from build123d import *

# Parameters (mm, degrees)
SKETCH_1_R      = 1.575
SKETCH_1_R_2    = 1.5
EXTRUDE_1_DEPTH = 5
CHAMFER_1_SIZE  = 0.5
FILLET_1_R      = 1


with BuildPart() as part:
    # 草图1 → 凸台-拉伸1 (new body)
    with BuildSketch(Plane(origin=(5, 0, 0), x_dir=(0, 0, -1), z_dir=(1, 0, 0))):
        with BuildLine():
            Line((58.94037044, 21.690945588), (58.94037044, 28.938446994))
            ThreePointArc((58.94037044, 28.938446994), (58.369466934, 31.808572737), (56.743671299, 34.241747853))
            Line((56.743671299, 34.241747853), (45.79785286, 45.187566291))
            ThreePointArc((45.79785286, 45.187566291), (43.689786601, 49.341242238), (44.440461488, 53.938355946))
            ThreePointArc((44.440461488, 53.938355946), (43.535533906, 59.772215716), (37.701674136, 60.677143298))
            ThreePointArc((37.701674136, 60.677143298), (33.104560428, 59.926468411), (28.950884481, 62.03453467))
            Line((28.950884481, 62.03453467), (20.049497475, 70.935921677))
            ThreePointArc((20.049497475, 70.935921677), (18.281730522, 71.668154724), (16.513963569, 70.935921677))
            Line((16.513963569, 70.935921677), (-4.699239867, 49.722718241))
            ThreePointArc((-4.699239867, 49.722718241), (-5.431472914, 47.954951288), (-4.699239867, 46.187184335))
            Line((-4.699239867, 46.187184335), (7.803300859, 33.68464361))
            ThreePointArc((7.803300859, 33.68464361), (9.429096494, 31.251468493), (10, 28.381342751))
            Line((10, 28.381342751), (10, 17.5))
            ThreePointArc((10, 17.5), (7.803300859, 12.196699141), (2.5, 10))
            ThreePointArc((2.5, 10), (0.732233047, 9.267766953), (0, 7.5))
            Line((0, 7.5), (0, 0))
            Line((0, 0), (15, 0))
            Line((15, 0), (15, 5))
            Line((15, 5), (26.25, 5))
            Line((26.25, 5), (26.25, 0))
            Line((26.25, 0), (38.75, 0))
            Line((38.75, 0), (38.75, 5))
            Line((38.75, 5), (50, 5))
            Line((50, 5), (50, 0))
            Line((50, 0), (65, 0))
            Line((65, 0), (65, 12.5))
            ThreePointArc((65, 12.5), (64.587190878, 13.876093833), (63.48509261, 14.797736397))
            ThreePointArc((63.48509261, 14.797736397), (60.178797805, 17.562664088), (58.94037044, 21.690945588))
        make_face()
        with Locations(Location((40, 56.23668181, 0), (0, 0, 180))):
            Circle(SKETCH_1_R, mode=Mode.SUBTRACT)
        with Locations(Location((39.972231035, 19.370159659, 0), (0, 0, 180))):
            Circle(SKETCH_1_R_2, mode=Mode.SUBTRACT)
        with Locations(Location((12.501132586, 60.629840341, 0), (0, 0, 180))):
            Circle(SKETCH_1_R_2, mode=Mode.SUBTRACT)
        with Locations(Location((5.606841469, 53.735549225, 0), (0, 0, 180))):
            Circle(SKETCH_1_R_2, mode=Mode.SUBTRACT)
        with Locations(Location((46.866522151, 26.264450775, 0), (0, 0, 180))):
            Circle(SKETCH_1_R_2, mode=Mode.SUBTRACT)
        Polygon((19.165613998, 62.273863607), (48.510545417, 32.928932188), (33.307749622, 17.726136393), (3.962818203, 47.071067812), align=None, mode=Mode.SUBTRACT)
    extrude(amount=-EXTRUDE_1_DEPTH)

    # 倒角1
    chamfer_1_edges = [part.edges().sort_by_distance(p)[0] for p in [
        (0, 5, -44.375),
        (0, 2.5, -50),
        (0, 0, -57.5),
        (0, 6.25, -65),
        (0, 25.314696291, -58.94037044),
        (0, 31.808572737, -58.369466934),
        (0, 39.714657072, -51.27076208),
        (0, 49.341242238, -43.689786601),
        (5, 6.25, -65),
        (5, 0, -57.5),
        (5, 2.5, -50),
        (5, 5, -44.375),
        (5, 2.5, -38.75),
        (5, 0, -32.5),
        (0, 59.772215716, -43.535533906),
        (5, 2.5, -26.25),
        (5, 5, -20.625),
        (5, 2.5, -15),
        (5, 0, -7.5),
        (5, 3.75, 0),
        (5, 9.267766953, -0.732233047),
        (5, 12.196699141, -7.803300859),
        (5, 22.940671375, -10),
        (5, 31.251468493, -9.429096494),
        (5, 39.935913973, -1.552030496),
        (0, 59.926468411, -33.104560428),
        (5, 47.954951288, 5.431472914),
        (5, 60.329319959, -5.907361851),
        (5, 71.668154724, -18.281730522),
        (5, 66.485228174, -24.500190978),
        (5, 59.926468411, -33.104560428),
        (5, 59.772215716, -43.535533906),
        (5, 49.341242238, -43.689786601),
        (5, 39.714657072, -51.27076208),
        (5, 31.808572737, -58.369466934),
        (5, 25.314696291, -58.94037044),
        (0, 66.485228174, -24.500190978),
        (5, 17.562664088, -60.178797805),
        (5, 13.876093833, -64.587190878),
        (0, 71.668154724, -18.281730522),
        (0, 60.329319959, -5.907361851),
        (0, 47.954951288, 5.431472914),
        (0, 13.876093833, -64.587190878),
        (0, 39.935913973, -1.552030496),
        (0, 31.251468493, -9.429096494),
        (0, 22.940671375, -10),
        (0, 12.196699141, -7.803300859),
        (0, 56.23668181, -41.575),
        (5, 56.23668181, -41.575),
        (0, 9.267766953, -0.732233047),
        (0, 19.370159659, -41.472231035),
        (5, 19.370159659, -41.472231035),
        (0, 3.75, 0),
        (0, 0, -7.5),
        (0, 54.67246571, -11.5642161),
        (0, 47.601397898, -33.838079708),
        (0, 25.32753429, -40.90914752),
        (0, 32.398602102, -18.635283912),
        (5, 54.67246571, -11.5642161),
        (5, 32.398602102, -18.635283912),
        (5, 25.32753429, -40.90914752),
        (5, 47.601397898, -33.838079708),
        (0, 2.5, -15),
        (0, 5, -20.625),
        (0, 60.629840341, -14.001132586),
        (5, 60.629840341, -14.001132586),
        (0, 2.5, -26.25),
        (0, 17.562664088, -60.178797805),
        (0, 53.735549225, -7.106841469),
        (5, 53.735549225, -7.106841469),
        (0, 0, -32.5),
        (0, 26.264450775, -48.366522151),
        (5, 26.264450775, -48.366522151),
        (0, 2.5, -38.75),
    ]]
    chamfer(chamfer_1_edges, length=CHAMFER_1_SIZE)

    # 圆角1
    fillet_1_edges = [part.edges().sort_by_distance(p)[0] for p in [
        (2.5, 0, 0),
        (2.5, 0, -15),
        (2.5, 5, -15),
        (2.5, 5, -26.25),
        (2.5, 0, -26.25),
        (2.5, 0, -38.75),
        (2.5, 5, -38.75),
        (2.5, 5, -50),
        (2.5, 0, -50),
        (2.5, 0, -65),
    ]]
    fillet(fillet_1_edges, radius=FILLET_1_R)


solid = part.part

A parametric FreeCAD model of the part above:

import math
import FreeCAD as App
import Part
import Sketcher

V = App.Vector


def edges_at(feature, points):
    """Names of the edges that pass closest to the given points."""
    edges = feature.Shape.Edges
    near = lambda p: min(range(len(edges)), key=lambda i: edges[i].distToShape(Part.Vertex(*p))[0])
    return sorted({f"Edge{near(p) + 1}" for p in points})

doc = App.newDocument("Part")
body = doc.addObject("PartDesign::Body", "Body")

# Sketch on YZ plane
sketch1 = doc.addObject("Sketcher::SketchObject", "Sketch")
body.addObject(sketch1)
sketch1.AttachmentSupport = (doc.YZ_Plane, [""])
sketch1.MapMode = "FlatFace"
sketch1.AttachmentOffset = App.Placement(V(0, 0, 5), App.Rotation())
sketch1.addGeometry([
    Part.LineSegment(V(21.690946, -58.94037, 0), V(28.938447, -58.94037, 0)),  # 0
    Part.ArcOfCircle(Part.Circle(V(28.938447, -51.44037, 0), V(0, 0, 1), 7.5), math.radians(-90), math.radians(-45)),  # 1
    Part.LineSegment(V(34.241748, -56.743671, 0), V(45.187566, -45.797853, 0)),  # 2
    Part.ArcOfCircle(Part.Circle(V(50.490867, -51.101154, 0), V(0, 0, 1), 7.5), math.radians(62.634496), math.radians(135)),  # 3
    Part.ArcOfCircle(Part.Circle(V(56.236682, -40, 0), V(0, 0, 1), 5), math.radians(-117.365504), math.radians(27.365504)),  # 4
    Part.ArcOfCircle(Part.Circle(V(67.337836, -34.254185, 0), V(0, 0, 1), 7.5), math.radians(135), math.radians(207.365504)),  # 5
    Part.LineSegment(V(62.034535, -28.950884, 0), V(70.935922, -20.049497, 0)),  # 6
    Part.ArcOfCircle(Part.Circle(V(69.168155, -18.281731, 0), V(0, 0, 1), 2.5), math.radians(-45), math.radians(45)),  # 7
    Part.LineSegment(V(70.935922, -16.513964, 0), V(49.722718, 4.69924, 0)),  # 8
    Part.ArcOfCircle(Part.Circle(V(47.954951, 2.931473, 0), V(0, 0, 1), 2.5), math.radians(45), math.radians(135)),  # 9
    Part.LineSegment(V(46.187184, 4.69924, 0), V(33.684644, -7.803301, 0)),  # 10
    Part.ArcOfCircle(Part.Circle(V(28.381343, -2.5, 0), V(0, 0, 1), 7.5), math.radians(-90), math.radians(-45)),  # 11
    Part.LineSegment(V(28.381343, -10, 0), V(17.5, -10, 0)),  # 12
    Part.ArcOfCircle(Part.Circle(V(17.5, -2.5, 0), V(0, 0, 1), 7.5), math.radians(180), math.radians(270)),  # 13
    Part.ArcOfCircle(Part.Circle(V(7.5, -2.5, 0), V(0, 0, 1), 2.5), math.radians(0), math.radians(90)),  # 14
    Part.LineSegment(V(7.5, 0, 0), V(0, 0, 0)),  # 15
    Part.LineSegment(V(0, 0, 0), V(0, -15, 0)),  # 16
    Part.LineSegment(V(0, -15, 0), V(5, -15, 0)),  # 17
    Part.LineSegment(V(5, -15, 0), V(5, -26.25, 0)),  # 18
    Part.LineSegment(V(5, -26.25, 0), V(0, -26.25, 0)),  # 19
    Part.LineSegment(V(0, -26.25, 0), V(0, -38.75, 0)),  # 20
    Part.LineSegment(V(0, -38.75, 0), V(5, -38.75, 0)),  # 21
    Part.LineSegment(V(5, -38.75, 0), V(5, -50, 0)),  # 22
    Part.LineSegment(V(5, -50, 0), V(0, -50, 0)),  # 23
    Part.LineSegment(V(0, -50, 0), V(0, -65, 0)),  # 24
    Part.LineSegment(V(0, -65, 0), V(12.5, -65, 0)),  # 25
    Part.ArcOfCircle(Part.Circle(V(12.5, -62.5, 0), V(0, 0, 1), 2.5), math.radians(-90), math.radians(-23.205931)),  # 26
    Part.ArcOfCircle(Part.Circle(V(21.690946, -66.44037, 0), V(0, 0, 1), 7.5), math.radians(90), math.radians(156.79407)),  # 27
    Part.Circle(V(19.37016, -39.972231, 0), V(0, 0, 1), 1.5),  # 28
    Part.Circle(V(26.264451, -46.866522, 0), V(0, 0, 1), 1.5),  # 29
    Part.Circle(V(53.735549, -5.606841, 0), V(0, 0, 1), 1.5),  # 30
    Part.Circle(V(60.62984, -12.501133, 0), V(0, 0, 1), 1.5),  # 31
    Part.LineSegment(V(47.071068, -3.962818, 0), V(62.273864, -19.165614, 0)),  # 32
    Part.LineSegment(V(62.273864, -19.165614, 0), V(32.928932, -48.510545, 0)),  # 33
    Part.LineSegment(V(32.928932, -48.510545, 0), V(17.726136, -33.30775, 0)),  # 34
    Part.LineSegment(V(17.726136, -33.30775, 0), V(47.071068, -3.962818, 0)),  # 35
    Part.Circle(V(56.236682, -40, 0), V(0, 0, 1), 1.575),  # 36
], False)
sketch1.addConstraint([
    Sketcher.Constraint("Tangent", 0, 2, 1, 1),
    Sketcher.Constraint("Tangent", 1, 2, 2, 1),
    Sketcher.Constraint("Tangent", 2, 2, 3, 2),
    Sketcher.Constraint("Tangent", 3, 1, 4, 1),
    Sketcher.Constraint("Tangent", 4, 2, 5, 2),
    Sketcher.Constraint("Tangent", 5, 1, 6, 1),
    Sketcher.Constraint("Tangent", 6, 2, 7, 1),
    Sketcher.Constraint("Tangent", 7, 2, 8, 1),
    Sketcher.Constraint("Tangent", 8, 2, 9, 1),
    Sketcher.Constraint("Tangent", 9, 2, 10, 1),
    Sketcher.Constraint("Tangent", 10, 2, 11, 2),
    Sketcher.Constraint("Tangent", 11, 1, 12, 1),
    Sketcher.Constraint("Tangent", 12, 2, 13, 2),
    Sketcher.Constraint("Tangent", 13, 1, 14, 1),
    Sketcher.Constraint("Tangent", 14, 2, 15, 1),
    Sketcher.Constraint("Coincident", 15, 2, 16, 1),
    Sketcher.Constraint("Coincident", 16, 2, 17, 1),
    Sketcher.Constraint("Coincident", 17, 2, 18, 1),
    Sketcher.Constraint("Coincident", 18, 2, 19, 1),
    Sketcher.Constraint("Coincident", 19, 2, 20, 1),
    Sketcher.Constraint("Coincident", 20, 2, 21, 1),
    Sketcher.Constraint("Coincident", 21, 2, 22, 1),
    Sketcher.Constraint("Coincident", 22, 2, 23, 1),
    Sketcher.Constraint("Coincident", 23, 2, 24, 1),
    Sketcher.Constraint("Coincident", 24, 2, 25, 1),
    Sketcher.Constraint("Tangent", 25, 2, 26, 1),
    Sketcher.Constraint("Tangent", 26, 2, 27, 2),
    Sketcher.Constraint("Tangent", 27, 1, 0, 1),
    Sketcher.Constraint("Coincident", 32, 2, 33, 1),
    Sketcher.Constraint("Coincident", 33, 2, 34, 1),
    Sketcher.Constraint("Coincident", 34, 2, 35, 1),
    Sketcher.Constraint("Coincident", 35, 2, 32, 1),
    Sketcher.Constraint("Horizontal", 0),
    Sketcher.Constraint("Horizontal", 12),
    Sketcher.Constraint("Horizontal", 15),
    Sketcher.Constraint("Vertical", 16),
    Sketcher.Constraint("Horizontal", 17),
    Sketcher.Constraint("Vertical", 18),
    Sketcher.Constraint("Horizontal", 19),
    Sketcher.Constraint("Vertical", 20),
    Sketcher.Constraint("Horizontal", 21),
    Sketcher.Constraint("Vertical", 22),
    Sketcher.Constraint("Horizontal", 23),
    Sketcher.Constraint("Vertical", 24),
    Sketcher.Constraint("Horizontal", 25),
    Sketcher.Constraint("Coincident", 15, 2, -1, 1),
    Sketcher.Constraint("Coincident", 36, 3, 4, 3),
    Sketcher.Constraint("Equal", 1, 3),
    Sketcher.Constraint("Equal", 3, 5),
    Sketcher.Constraint("Equal", 7, 9),
    Sketcher.Constraint("Equal", 5, 11),
    Sketcher.Constraint("Equal", 11, 13),
    Sketcher.Constraint("Equal", 9, 14),
    Sketcher.Constraint("Equal", 14, 26),
    Sketcher.Constraint("Equal", 13, 27),
    Sketcher.Constraint("Equal", 28, 29),
    Sketcher.Constraint("Equal", 29, 30),
    Sketcher.Constraint("Equal", 30, 31),
    Sketcher.Constraint("PointOnObject", 19, 2, -2),
    Sketcher.Constraint("PointOnObject", 23, 2, -2),
    Sketcher.Constraint("Parallel", 2, 6),
    Sketcher.Constraint("Perpendicular", 6, 8),
    Sketcher.Constraint("Perpendicular", 8, 10),
    Sketcher.Constraint("Perpendicular", 10, 32),
    Sketcher.Constraint("Perpendicular", 32, 33),
    Sketcher.Constraint("Perpendicular", 33, 34),
    Sketcher.Constraint("Perpendicular", 34, 35),
    Sketcher.Constraint("Horizontal", 13, 3, 14, 3),
    Sketcher.Constraint("Horizontal", 8, 2, 9, 2),
    Sketcher.Constraint("Vertical", 18, 2, 21, 2),
    Sketcher.Constraint("Equal", 25, 20),
    Sketcher.Constraint("Equal", 18, 22),
    Sketcher.Constraint("Equal", 16, 24),
    Sketcher.Constraint("Diameter", 28, 3.0),
    Sketcher.Constraint("Radius", 4, 5.0),
    Sketcher.Constraint("Radius", 1, 7.5),
    Sketcher.Constraint("Radius", 7, 2.5),
    Sketcher.Constraint("Diameter", 36, 3.15),
    Sketcher.Constraint("DistanceX", 17, 1, 17, 2, 5.0),
    Sketcher.Constraint("DistanceY", 16, 2, 16, 1, 15.0),
    Sketcher.Constraint("Distance", 8, 30.0),
    Sketcher.Constraint("DistanceX", 15, 2, 15, 1, 7.5),
    Sketcher.Constraint("DistanceX", 25, 1, 25, 2, 12.5),
    Sketcher.Constraint("DistanceY", 4, 3, -1, 1, 40.0),
    Sketcher.Constraint("DistanceY", 22, 2, -1, 1, 50.0),
    Sketcher.Constraint("Distance", 32, 21.5),
    Sketcher.Constraint("Distance", 33, 41.5),
    Sketcher.Constraint("DistanceX", 0, 1, 0, 2, 7.247501),
    Sketcher.Constraint("DistanceX", 12, 2, 12, 1, 10.881343),
    Sketcher.Constraint("DistanceY", 1, 3, -1, 1, 51.44037),
    Sketcher.Constraint("DistanceX", -1, 1, 4, 3, 56.236682),
    Sketcher.Constraint("DistanceY", 7, 3, -1, 1, 18.281731),
    Sketcher.Constraint("DistanceX", -1, 1, 28, 3, 19.37016),
    Sketcher.Constraint("DistanceY", 28, 3, -1, 1, 39.972231),
    Sketcher.Constraint("DistanceX", -1, 1, 29, 3, 26.264451),
    Sketcher.Constraint("DistanceX", -1, 1, 30, 3, 53.735549),
    Sketcher.Constraint("DistanceY", 30, 3, -1, 1, 5.606841),
    Sketcher.Constraint("DistanceX", -1, 1, 31, 3, 60.62984),
    Sketcher.Constraint("DistanceY", 34, 2, -1, 1, 33.30775),
    Sketcher.Constraint("DistanceY", 1, 3, 29, 3, 4.573848),
    Sketcher.Constraint("DistanceY", 31, 3, 30, 3, 6.894291),
    Sketcher.Constraint("DistanceX", 32, 2, 7, 3, 6.894291),
])
pad1 = doc.addObject("PartDesign::Pad", "Pad")
body.addObject(pad1)
pad1.Profile = sketch1
pad1.Length = 5
pad1.Reversed = True
doc.recompute()

chamfer = doc.addObject("PartDesign::Chamfer", "Chamfer")
body.addObject(chamfer)
chamfer.Base = (pad1, edges_at(pad1, [
    (0, 5, -44.375),
    (0, 2.5, -50),
    (0, 0, -57.5),
    (0, 6.25, -65),
    (0, 25.315, -58.94),
    (0, 31.809, -58.369),
    (0, 39.715, -51.271),
    (0, 49.341, -43.69),
    (5, 6.25, -65),
    (5, 0, -57.5),
    (5, 2.5, -50),
    (5, 5, -44.375),
    (5, 2.5, -38.75),
    (5, 0, -32.5),
    (0, 59.772, -43.536),
    (5, 2.5, -26.25),
    (5, 5, -20.625),
    (5, 2.5, -15),
    (5, 0, -7.5),
    (5, 3.75, 0),
    (5, 9.268, -0.732),
    (5, 12.197, -7.803),
    (5, 22.941, -10),
    (5, 31.251, -9.429),
    (5, 39.936, -1.552),
    (0, 59.926, -33.105),
    (5, 47.955, 5.431),
    (5, 60.329, -5.907),
    (5, 71.668, -18.282),
    (5, 66.485, -24.5),
    (5, 59.926, -33.105),
    (5, 59.772, -43.536),
    (5, 49.341, -43.69),
    (5, 39.715, -51.271),
    (5, 31.809, -58.369),
    (5, 25.315, -58.94),
    (0, 66.485, -24.5),
    (5, 17.563, -60.179),
    (5, 13.876, -64.587),
    (0, 71.668, -18.282),
    (0, 60.329, -5.907),
    (0, 47.955, 5.431),
    (0, 13.876, -64.587),
    (0, 39.936, -1.552),
    (0, 31.251, -9.429),
    (0, 22.941, -10),
    (0, 12.197, -7.803),
    (0, 56.237, -41.575),
    (5, 56.237, -41.575),
    (0, 9.268, -0.732),
    (0, 19.37, -41.472),
    (5, 19.37, -41.472),
    (0, 3.75, 0),
    (0, 0, -7.5),
    (0, 54.672, -11.564),
    (0, 47.601, -33.838),
    (0, 25.328, -40.909),
    (0, 32.399, -18.635),
    (5, 54.672, -11.564),
    (5, 32.399, -18.635),
    (5, 25.328, -40.909),
    (5, 47.601, -33.838),
    (0, 2.5, -15),
    (0, 5, -20.625),
    (0, 60.63, -14.001),
    (5, 60.63, -14.001),
    (0, 2.5, -26.25),
    (0, 17.563, -60.179),
    (0, 53.736, -7.107),
    (5, 53.736, -7.107),
    (0, 0, -32.5),
    (0, 26.264, -48.367),
    (5, 26.264, -48.367),
    (0, 2.5, -38.75),
]))
chamfer.Size = 0.5
doc.recompute()

fillet = doc.addObject("PartDesign::Fillet", "Fillet")
body.addObject(fillet)
fillet.Base = (chamfer, edges_at(chamfer, [
    (2.5, 0, 0),
    (2.5, 0, -15),
    (2.5, 5, -15),
    (2.5, 5, -26.25),
    (2.5, 0, -26.25),
    (2.5, 0, -38.75),
    (2.5, 5, -38.75),
    (2.5, 5, -50),
    (2.5, 0, -50),
    (2.5, 0, -65),
]))
fillet.Radius = 1

doc.recompute()
